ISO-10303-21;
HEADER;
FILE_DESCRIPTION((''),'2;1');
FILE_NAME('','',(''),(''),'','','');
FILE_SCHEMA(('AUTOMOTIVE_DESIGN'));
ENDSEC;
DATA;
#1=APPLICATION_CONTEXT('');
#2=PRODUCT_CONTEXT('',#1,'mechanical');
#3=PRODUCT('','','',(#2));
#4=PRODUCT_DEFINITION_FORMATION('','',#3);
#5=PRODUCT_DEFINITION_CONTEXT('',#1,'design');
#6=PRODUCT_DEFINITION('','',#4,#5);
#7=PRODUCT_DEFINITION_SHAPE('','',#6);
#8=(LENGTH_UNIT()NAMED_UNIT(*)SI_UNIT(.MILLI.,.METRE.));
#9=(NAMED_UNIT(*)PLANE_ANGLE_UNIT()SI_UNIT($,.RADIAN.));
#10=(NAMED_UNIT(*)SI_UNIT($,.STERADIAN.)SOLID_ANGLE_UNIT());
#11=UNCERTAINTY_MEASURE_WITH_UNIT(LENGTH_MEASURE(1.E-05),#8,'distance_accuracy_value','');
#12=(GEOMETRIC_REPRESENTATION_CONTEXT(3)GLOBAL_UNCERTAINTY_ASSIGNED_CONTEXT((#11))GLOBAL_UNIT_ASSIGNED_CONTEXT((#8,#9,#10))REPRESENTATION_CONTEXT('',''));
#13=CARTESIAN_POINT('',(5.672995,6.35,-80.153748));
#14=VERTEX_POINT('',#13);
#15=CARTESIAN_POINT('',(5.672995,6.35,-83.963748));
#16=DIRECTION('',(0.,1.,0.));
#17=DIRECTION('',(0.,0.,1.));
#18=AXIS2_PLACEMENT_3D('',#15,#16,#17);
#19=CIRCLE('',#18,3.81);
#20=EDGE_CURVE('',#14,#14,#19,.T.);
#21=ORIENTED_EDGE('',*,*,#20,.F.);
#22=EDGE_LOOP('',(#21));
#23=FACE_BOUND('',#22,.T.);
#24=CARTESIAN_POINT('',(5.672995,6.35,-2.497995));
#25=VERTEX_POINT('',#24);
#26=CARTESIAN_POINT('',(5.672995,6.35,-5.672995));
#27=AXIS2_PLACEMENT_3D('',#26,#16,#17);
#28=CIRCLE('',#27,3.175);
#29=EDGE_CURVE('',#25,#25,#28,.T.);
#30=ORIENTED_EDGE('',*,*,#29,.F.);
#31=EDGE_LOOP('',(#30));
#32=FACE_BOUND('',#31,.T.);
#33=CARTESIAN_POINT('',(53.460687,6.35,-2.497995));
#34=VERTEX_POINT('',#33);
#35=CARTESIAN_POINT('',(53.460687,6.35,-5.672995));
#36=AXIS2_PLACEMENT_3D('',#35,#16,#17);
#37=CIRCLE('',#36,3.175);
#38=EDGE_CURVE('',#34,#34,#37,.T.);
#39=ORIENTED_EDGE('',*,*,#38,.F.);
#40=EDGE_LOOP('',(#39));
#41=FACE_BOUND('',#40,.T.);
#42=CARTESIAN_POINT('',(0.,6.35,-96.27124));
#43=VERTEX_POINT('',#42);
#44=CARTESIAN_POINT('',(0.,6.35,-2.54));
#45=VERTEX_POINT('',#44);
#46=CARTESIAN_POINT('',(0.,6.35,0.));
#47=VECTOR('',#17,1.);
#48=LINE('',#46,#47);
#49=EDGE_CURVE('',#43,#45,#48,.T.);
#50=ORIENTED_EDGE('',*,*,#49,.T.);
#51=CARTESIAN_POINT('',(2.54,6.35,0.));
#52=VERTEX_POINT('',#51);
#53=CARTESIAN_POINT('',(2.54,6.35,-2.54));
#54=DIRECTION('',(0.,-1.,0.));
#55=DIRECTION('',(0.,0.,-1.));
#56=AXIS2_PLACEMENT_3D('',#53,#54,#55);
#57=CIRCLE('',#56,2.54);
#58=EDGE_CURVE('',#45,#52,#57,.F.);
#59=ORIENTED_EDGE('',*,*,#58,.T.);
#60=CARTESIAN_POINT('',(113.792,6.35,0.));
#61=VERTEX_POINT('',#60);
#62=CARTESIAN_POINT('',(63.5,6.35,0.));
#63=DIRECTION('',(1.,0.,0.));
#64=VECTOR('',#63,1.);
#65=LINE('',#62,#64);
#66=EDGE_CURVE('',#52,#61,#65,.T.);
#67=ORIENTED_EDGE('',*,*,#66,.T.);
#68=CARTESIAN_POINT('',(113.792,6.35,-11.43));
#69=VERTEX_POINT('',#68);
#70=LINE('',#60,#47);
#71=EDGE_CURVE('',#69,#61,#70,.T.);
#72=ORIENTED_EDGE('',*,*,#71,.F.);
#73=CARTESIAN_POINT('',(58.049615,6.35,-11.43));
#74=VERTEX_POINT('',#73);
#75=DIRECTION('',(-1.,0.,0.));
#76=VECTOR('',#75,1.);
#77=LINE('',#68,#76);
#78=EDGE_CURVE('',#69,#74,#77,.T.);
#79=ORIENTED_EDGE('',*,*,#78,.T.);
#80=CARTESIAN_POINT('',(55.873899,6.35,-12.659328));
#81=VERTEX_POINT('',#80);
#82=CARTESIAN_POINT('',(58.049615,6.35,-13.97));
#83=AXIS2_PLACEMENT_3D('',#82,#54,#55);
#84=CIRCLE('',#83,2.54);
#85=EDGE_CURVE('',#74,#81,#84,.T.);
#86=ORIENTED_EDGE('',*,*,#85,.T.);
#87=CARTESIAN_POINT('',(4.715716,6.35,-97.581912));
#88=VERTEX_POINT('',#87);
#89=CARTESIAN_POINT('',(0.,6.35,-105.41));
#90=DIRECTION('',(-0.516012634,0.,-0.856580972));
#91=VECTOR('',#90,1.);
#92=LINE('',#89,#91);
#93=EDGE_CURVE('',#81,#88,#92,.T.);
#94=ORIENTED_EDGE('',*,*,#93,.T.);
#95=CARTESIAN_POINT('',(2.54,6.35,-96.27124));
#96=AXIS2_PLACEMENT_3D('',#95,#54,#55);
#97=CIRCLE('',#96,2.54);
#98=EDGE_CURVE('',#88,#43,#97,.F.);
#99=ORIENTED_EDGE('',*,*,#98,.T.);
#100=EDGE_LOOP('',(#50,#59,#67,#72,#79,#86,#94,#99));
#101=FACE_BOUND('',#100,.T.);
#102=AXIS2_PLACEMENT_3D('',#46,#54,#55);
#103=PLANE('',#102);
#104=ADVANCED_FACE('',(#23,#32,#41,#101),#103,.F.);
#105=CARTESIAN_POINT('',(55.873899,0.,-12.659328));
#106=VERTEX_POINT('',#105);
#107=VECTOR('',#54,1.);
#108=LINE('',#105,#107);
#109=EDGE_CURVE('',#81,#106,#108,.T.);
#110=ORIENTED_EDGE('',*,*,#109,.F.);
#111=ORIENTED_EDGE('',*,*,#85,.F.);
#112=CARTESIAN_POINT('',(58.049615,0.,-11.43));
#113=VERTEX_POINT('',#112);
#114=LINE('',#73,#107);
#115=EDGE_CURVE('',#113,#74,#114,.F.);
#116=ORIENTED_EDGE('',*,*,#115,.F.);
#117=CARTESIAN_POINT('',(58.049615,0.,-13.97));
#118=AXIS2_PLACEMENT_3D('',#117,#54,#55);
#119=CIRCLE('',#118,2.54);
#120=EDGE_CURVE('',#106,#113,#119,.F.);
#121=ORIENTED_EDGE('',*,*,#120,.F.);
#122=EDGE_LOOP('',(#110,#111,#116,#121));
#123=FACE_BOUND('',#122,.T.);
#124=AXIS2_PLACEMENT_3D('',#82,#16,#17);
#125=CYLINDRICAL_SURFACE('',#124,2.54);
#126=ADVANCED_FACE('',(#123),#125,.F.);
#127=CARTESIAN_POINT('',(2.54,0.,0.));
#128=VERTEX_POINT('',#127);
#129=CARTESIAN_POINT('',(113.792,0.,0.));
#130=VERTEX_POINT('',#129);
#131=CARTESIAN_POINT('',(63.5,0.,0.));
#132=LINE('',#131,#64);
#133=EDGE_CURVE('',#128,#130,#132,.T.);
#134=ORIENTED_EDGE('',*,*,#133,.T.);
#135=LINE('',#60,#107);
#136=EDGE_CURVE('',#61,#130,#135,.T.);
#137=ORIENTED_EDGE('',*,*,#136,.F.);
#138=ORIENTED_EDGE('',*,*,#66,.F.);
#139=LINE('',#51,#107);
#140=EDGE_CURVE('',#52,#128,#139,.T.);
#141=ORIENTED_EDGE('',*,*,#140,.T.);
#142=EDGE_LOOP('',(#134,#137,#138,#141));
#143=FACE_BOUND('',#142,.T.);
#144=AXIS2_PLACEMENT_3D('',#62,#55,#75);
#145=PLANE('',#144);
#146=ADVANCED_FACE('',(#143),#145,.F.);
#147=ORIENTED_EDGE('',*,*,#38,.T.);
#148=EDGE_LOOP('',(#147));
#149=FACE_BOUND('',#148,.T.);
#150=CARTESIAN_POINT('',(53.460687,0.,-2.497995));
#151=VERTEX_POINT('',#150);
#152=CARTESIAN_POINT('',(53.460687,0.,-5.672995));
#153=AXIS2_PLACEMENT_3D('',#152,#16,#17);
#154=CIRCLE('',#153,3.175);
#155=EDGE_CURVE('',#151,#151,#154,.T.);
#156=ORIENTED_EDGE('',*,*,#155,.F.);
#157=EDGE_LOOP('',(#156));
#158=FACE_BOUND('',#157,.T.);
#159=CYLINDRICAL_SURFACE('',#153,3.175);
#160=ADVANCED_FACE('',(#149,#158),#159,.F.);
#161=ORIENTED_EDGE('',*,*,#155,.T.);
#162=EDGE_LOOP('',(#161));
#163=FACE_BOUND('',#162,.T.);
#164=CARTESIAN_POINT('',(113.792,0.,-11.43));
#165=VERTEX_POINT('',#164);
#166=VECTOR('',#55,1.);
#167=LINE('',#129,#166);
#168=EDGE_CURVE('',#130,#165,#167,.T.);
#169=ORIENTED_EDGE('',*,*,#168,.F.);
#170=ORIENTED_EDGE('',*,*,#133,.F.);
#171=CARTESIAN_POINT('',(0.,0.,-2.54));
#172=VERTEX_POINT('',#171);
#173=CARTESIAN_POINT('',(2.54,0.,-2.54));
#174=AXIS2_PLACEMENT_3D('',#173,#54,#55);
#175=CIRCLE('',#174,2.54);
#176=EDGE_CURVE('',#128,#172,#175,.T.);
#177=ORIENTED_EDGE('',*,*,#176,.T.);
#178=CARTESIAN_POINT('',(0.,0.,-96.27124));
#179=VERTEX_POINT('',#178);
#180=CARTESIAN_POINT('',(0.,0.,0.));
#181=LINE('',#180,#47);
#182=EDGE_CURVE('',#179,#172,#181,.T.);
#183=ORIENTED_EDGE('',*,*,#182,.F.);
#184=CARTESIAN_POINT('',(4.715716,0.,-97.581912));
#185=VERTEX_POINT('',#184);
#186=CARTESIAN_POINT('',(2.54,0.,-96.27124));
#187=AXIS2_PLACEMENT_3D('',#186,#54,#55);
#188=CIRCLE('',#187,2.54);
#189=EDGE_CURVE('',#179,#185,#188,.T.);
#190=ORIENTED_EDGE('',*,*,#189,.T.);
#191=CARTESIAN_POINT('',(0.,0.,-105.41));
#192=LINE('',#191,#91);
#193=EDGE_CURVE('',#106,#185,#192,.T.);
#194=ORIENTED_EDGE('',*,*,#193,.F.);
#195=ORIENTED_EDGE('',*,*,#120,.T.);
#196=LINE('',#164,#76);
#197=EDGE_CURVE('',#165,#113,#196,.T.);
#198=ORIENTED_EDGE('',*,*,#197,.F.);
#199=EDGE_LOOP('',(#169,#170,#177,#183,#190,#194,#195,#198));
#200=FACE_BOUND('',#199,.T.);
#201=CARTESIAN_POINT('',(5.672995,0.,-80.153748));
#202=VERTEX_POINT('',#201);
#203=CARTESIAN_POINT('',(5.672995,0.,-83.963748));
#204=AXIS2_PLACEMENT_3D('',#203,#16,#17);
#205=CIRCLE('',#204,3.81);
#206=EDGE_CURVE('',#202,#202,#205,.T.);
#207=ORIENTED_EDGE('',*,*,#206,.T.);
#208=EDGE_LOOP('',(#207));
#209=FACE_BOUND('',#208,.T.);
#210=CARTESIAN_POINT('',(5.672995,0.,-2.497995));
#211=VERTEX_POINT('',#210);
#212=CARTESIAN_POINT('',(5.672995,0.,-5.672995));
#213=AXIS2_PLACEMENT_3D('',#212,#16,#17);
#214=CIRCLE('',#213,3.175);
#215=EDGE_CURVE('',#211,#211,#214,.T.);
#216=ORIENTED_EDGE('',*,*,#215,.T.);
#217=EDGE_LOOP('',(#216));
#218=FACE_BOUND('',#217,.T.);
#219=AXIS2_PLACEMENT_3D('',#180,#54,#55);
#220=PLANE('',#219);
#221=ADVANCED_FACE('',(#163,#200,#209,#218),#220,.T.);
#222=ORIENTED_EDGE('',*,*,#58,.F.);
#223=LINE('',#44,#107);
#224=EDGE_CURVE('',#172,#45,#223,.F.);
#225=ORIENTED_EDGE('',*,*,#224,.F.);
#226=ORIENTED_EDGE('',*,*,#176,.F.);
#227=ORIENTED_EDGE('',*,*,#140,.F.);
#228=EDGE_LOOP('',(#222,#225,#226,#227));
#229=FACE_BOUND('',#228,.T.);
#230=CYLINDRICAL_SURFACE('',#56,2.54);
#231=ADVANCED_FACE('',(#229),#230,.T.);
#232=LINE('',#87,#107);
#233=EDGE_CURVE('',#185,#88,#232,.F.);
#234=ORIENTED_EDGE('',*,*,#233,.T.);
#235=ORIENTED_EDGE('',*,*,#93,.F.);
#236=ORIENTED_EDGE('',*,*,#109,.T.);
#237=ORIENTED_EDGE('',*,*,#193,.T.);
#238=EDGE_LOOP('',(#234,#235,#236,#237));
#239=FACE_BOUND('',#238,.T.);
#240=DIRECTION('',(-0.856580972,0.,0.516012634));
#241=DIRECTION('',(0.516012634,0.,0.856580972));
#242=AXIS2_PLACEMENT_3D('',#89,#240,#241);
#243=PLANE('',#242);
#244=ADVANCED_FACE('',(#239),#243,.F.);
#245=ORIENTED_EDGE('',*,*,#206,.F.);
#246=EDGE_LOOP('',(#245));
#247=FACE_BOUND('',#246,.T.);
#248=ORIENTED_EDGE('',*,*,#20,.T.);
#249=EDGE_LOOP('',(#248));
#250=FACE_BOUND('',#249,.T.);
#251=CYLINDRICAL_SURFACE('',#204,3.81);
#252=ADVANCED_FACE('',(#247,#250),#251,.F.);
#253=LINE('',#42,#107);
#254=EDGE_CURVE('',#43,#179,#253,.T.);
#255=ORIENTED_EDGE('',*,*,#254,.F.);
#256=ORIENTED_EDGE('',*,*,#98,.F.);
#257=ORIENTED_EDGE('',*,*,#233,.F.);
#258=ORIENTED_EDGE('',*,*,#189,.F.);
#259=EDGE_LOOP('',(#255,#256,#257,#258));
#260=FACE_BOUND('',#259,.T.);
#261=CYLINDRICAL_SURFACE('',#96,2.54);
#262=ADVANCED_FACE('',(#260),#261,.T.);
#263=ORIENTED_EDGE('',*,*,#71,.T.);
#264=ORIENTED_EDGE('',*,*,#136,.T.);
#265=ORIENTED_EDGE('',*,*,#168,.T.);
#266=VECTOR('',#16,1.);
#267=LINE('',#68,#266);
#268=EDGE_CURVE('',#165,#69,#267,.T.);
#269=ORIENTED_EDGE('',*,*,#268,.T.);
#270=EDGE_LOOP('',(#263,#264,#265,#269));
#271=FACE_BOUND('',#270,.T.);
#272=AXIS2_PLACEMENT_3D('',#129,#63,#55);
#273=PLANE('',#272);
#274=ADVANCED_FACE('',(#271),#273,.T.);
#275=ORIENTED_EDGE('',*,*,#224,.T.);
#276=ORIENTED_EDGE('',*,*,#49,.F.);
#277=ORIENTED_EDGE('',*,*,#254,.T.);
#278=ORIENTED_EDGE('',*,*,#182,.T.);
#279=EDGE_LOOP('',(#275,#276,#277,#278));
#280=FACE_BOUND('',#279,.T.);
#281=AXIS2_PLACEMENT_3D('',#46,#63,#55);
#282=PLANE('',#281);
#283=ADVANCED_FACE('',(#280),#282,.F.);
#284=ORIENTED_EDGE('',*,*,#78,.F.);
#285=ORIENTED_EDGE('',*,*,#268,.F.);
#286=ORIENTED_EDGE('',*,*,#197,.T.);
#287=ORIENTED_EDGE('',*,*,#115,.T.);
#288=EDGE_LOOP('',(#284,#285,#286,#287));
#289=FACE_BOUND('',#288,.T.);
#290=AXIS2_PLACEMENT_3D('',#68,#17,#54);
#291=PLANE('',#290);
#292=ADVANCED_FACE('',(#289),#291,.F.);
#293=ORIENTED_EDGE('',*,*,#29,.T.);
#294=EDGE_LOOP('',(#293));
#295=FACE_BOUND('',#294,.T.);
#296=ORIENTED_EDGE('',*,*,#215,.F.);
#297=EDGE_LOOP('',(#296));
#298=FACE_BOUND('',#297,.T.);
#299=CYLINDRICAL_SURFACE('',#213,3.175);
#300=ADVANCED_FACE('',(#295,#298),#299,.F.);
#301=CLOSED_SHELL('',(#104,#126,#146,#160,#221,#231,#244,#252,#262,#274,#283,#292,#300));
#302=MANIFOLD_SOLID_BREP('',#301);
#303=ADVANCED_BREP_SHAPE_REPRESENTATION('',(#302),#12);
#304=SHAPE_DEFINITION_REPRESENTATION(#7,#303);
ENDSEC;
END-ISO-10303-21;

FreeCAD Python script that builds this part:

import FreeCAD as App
import Part
import Sketcher

V = App.Vector
Q = App.Units.Quantity


def edges_at(feature, points):
    """Names of the edges that pass closest to the given points."""
    edges = feature.Shape.Edges
    near = lambda p: min(range(len(edges)), key=lambda i: edges[i].distToShape(Part.Vertex(*p))[0])
    return sorted({f"Edge{near(p) + 1}" for p in points})


def add_polygon(sketch, points):
    """Adds a closed chain of lines whose ends are joined by coincident constraints."""
    first, n = sketch.GeometryCount, len(points)
    for a, b in zip(points, points[1:] + points[:1]):
        sketch.addGeometry(Part.LineSegment(App.Vector(*a, 0), App.Vector(*b, 0)), False)
    for i in range(n):
        sketch.addConstraint(Sketcher.Constraint("Coincident", first + i, 2, first + (i + 1) % n, 1))

doc = App.newDocument("Part")
body = doc.addObject("PartDesign::Body", "Body")

sketch1 = body.newObject("Sketcher::SketchObject", "Sketch")
sketch1.AttachmentSupport = (doc.getObject("XZ_Plane"), [""])
sketch1.MapMode = "FlatFace"
add_polygon(sketch1, [(0, -105.41), (0, 0), (63.5, 0)])
sketch1.addConstraint(Sketcher.Constraint("Vertical", 0))
sketch1.addConstraint(Sketcher.Constraint("Horizontal", 1))
sketch1.addConstraint(Sketcher.Constraint("Coincident", 0, 2, -1, 1))
sketch1.addConstraint(Sketcher.Constraint("DistanceX", 1, 1, 1, 2, Q("2.5 in")))
sketch1.addConstraint(Sketcher.Constraint("DistanceY", 0, 1, 0, 2, Q("4.15 in")))
pad1 = body.newObject("PartDesign::Pad", "Pad")
pad1.Profile = sketch1
pad1.Length = Q("0.25 in")
pad1.Reversed = True
doc.recompute()

fillet = body.newObject("PartDesign::Fillet", "Fillet")
fillet.Base = (pad1, edges_at(pad1, [(0, 3.175, 0), (0, 3.175, -105.41)]))
fillet.Radius = Q("0.1 in")

sketch2 = body.newObject("Sketcher::SketchObject", "Sketch001")
sketch2.AttachmentSupport = (doc.getObject("XZ_Plane"), [""])
sketch2.MapMode = "FlatFace"
sketch2.AttachmentOffset = App.Placement(V(0, 0, -0.25 * 25.4), App.Rotation())
sketch2.addGeometry(Part.Circle(V(5.672995, -83.963748, 0), V(0, 0, 1), 3.81), False)
sketch2.addGeometry(Part.Circle(V(5.672995, -5.672995, 0), V(0, 0, 1), 3.175), False)
sketch2.addGeometry(Part.Circle(V(53.460687, -5.672995, 0), V(0, 0, 1), 3.175), False)
sketch2.addConstraint(Sketcher.Constraint("Equal", 1, 2))
sketch2.addConstraint(Sketcher.Constraint("Horizontal", 1, 3, 2, 3))
sketch2.addConstraint(Sketcher.Constraint("Vertical", 0, 3, 1, 3))
sketch2.addConstraint(Sketcher.Constraint("Diameter", 0, Q("0.3 in")))
sketch2.addConstraint(Sketcher.Constraint("Diameter", 1, Q("0.25 in")))
sketch2.addConstraint(Sketcher.Constraint("DistanceY", 0, 3, -1, 1, 83.963748))
sketch2.addConstraint(Sketcher.Constraint("DistanceX", -1, 1, 0, 3, 5.672995))
sketch2.addConstraint(Sketcher.Constraint("DistanceY", 1, 3, -1, 1, 5.672995))
sketch2.addConstraint(Sketcher.Constraint("DistanceX", -1, 1, 2, 3, 53.460687))
pocket1 = body.newObject("PartDesign::Pocket", "Pocket")
pocket1.Profile = sketch2
pocket1.Type = "ThroughAll"
pocket1.Reversed = True

sketch3 = body.newObject("Sketcher::SketchObject", "Sketch002")
sketch3.AttachmentSupport = (doc.getObject("YZ_Plane"), [""])
sketch3.MapMode = "FlatFace"
sketch3.AttachmentOffset = App.Placement(V(0, 0, 2.25 * 25.4), App.Rotation())
add_polygon(sketch3, [(6.35, 0), (0, 0), (0, -11.43), (6.35, -11.43)])
sketch3.addConstraint(Sketcher.Constraint("Horizontal", 0))
sketch3.addConstraint(Sketcher.Constraint("Vertical", 1))
sketch3.addConstraint(Sketcher.Constraint("Horizontal", 2))
sketch3.addConstraint(Sketcher.Constraint("Vertical", 3))
sketch3.addConstraint(Sketcher.Constraint("Coincident", 0, 2, -1, 1))
sketch3.addConstraint(Sketcher.Constraint("DistanceX", 0, 2, 0, 1, Q("0.25 in")))
sketch3.addConstraint(Sketcher.Constraint("DistanceY", 1, 2, 1, 1, Q("0.45 in")))
pad2 = body.newObject("PartDesign::Pad", "Pad001")
pad2.Profile = sketch3
pad2.Length = Q("2.23 in")

sketch4 = body.newObject("Sketcher::SketchObject", "Sketch003")
sketch4.AttachmentSupport = (doc.getObject("YZ_Plane"), [""])
sketch4.MapMode = "FlatFace"
sketch4.AttachmentOffset = App.Placement(V(0, 0, 2.25 * 25.4), App.Rotation())
add_polygon(sketch4, [(6.35, -10.541), (0, -10.541), (0, -11.43), (6.35, -11.43)])
sketch4.addConstraint(Sketcher.Constraint("Horizontal", 0))
sketch4.addConstraint(Sketcher.Constraint("Vertical", 1))
sketch4.addConstraint(Sketcher.Constraint("Horizontal", 2))
sketch4.addConstraint(Sketcher.Constraint("Vertical", 3))
sketch4.addConstraint(Sketcher.Constraint("PointOnObject", 0, 2, -2))
sketch4.addConstraint(Sketcher.Constraint("DistanceX", 0, 2, 0, 1, Q("0.25 in")))
sketch4.addConstraint(Sketcher.Constraint("DistanceY", 1, 2, 1, 1, Q("0.035 in")))
sketch4.addConstraint(Sketcher.Constraint("DistanceY", 1, 2, -1, 1, Q("0.45 in")))
pad3 = body.newObject("PartDesign::Pad", "Pad002")
pad3.Profile = sketch4
pad3.Length = Q("0.05 in")
pad3.Reversed = True
doc.recompute()

fillet2 = body.newObject("PartDesign::Fillet", "Fillet001")
fillet2.Base = (pad3, edges_at(pad3, [(56.614, 3.175, -11.43)]))
fillet2.Radius = Q("0.1 in")

doc.recompute()
